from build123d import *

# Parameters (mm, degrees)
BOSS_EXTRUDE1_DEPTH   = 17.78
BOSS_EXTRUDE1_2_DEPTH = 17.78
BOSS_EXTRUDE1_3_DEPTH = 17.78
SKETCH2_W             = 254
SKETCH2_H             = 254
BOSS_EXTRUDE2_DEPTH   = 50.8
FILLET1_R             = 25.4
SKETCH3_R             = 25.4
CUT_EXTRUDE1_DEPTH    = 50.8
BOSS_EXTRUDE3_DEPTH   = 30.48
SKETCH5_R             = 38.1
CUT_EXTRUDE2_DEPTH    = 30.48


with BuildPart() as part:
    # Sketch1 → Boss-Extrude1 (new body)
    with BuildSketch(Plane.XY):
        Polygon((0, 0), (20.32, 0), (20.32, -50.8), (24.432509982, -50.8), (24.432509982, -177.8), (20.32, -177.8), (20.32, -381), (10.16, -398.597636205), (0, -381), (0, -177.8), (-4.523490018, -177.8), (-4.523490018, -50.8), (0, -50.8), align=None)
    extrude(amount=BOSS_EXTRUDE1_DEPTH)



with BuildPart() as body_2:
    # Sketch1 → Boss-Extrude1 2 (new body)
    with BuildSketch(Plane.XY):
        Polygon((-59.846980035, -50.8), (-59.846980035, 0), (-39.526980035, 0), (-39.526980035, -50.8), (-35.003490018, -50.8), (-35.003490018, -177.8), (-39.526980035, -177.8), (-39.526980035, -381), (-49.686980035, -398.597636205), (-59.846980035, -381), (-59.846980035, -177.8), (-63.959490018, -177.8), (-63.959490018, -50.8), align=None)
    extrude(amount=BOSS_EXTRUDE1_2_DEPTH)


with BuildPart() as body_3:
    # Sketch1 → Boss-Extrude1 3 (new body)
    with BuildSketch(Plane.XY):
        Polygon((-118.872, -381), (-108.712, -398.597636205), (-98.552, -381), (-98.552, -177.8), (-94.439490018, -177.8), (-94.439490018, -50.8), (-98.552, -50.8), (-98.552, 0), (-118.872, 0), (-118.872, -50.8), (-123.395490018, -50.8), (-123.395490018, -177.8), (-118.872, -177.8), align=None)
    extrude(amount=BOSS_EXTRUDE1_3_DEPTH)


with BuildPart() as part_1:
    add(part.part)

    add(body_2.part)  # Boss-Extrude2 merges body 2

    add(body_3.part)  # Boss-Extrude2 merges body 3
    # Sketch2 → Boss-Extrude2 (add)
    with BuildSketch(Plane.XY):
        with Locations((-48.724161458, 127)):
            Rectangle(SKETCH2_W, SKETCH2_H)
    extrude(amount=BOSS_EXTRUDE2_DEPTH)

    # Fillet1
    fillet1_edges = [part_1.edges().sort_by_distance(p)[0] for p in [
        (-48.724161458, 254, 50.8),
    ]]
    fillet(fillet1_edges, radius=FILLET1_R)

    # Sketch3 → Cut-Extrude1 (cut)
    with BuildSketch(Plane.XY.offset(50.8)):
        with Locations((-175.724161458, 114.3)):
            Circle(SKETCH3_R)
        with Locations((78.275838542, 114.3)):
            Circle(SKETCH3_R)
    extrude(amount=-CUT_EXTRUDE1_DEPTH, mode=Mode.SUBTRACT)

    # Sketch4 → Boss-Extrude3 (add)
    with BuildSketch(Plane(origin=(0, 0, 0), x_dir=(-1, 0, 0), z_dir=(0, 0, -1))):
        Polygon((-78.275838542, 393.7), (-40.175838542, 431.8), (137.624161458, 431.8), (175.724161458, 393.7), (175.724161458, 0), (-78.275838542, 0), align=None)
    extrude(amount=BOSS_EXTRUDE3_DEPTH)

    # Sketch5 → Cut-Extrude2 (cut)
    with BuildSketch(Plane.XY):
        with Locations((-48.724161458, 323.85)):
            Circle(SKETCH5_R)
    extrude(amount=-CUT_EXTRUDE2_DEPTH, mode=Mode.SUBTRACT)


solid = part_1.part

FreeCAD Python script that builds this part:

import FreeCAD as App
import Part
import Sketcher
from FreeCAD import Vector
Q = App.Units.Quantity


def edges_at(feature, points):
    """Names of the edges that pass closest to the given points."""
    edges = feature.Shape.Edges
    near = lambda p: min(range(len(edges)), key=lambda i: edges[i].distToShape(Part.Vertex(*p))[0])
    return sorted({f"Edge{near(p) + 1}" for p in points})

doc = App.newDocument("Part")
body = doc.addObject("PartDesign::Body", "Body")

# Sketch on XY plane
sketch1 = body.newObject("Sketcher::SketchObject", "Sketch")
sketch1.AttachmentSupport = (doc.getObject("XY_Plane"), [""])
sketch1.MapMode = "FlatFace"
sketch1.addGeometry(Part.LineSegment(Vector(20.3, 0, 0), Vector(0, 0, 0)), False)
sketch1.addGeometry(Part.LineSegment(Vector(0, 0, 0), Vector(0, -50.8, 0)), False)
sketch1.addGeometry(Part.LineSegment(Vector(0, -50.8, 0), Vector(-4.5, -50.8, 0)), False)
sketch1.addGeometry(Part.LineSegment(Vector(-4.5, -50.8, 0), Vector(-4.5, -177.8, 0)), False)
sketch1.addGeometry(Part.LineSegment(Vector(-4.5, -177.8, 0), Vector(0, -177.8, 0)), False)
sketch1.addGeometry(Part.LineSegment(Vector(0, -177.8, 0), Vector(0, -381, 0)), False)
sketch1.addGeometry(Part.LineSegment(Vector(0, -381, 0), Vector(10.2, -398.6, 0)), False)
sketch1.addGeometry(Part.LineSegment(Vector(10.2, -398.6, 0), Vector(20.3, -381, 0)), False)
sketch1.addGeometry(Part.LineSegment(Vector(20.3, -381, 0), Vector(20.3, -177.8, 0)), False)
sketch1.addGeometry(Part.LineSegment(Vector(20.3, -177.8, 0), Vector(24.4, -177.8, 0)), False)
sketch1.addGeometry(Part.LineSegment(Vector(24.4, -177.8, 0), Vector(24.4, -50.8, 0)), False)
sketch1.addGeometry(Part.LineSegment(Vector(24.4, -50.8, 0), Vector(20.3, -50.8, 0)), False)
sketch1.addGeometry(Part.LineSegment(Vector(20.3, -50.8, 0), Vector(20.3, 0, 0)), False)
sketch1.addConstraint(Sketcher.Constraint("Coincident", 0, 2, 1, 1))
sketch1.addConstraint(Sketcher.Constraint("Coincident", 1, 2, 2, 1))
sketch1.addConstraint(Sketcher.Constraint("Coincident", 2, 2, 3, 1))
sketch1.addConstraint(Sketcher.Constraint("Coincident", 3, 2, 4, 1))
sketch1.addConstraint(Sketcher.Constraint("Coincident", 4, 2, 5, 1))
sketch1.addConstraint(Sketcher.Constraint("Coincident", 5, 2, 6, 1))
sketch1.addConstraint(Sketcher.Constraint("Coincident", 6, 2, 7, 1))
sketch1.addConstraint(Sketcher.Constraint("Coincident", 7, 2, 8, 1))
sketch1.addConstraint(Sketcher.Constraint("Coincident", 8, 2, 9, 1))
sketch1.addConstraint(Sketcher.Constraint("Coincident", 9, 2, 10, 1))
sketch1.addConstraint(Sketcher.Constraint("Coincident", 10, 2, 11, 1))
sketch1.addConstraint(Sketcher.Constraint("Coincident", 11, 2, 12, 1))
sketch1.addConstraint(Sketcher.Constraint("Coincident", 12, 2, 0, 1))
sketch1.addConstraint(Sketcher.Constraint("Horizontal", 0))
sketch1.addConstraint(Sketcher.Constraint("Vertical", 1))
sketch1.addConstraint(Sketcher.Constraint("Horizontal", 2))
sketch1.addConstraint(Sketcher.Constraint("Vertical", 3))
sketch1.addConstraint(Sketcher.Constraint("Horizontal", 4))
sketch1.addConstraint(Sketcher.Constraint("Vertical", 5))
sketch1.addConstraint(Sketcher.Constraint("Vertical", 8))
sketch1.addConstraint(Sketcher.Constraint("Horizontal", 9))
sketch1.addConstraint(Sketcher.Constraint("Vertical", 10))
sketch1.addConstraint(Sketcher.Constraint("Horizontal", 11))
sketch1.addConstraint(Sketcher.Constraint("Vertical", 12))
sketch1.addConstraint(Sketcher.Constraint("Coincident", 0, 2, -1, 1))
sketch1.addConstraint(Sketcher.Constraint("PointOnObject", 4, 2, -2))
sketch1.addConstraint(Sketcher.Constraint("Horizontal", 5, 2, 7, 2))
sketch1.addConstraint(Sketcher.Constraint("Horizontal", 4, 2, 8, 2))
sketch1.addConstraint(Sketcher.Constraint("Horizontal", 2, 2, 10, 2))
sketch1.addConstraint(Sketcher.Constraint("Vertical", 8, 2, 11, 2))
sketch1.addConstraint(Sketcher.Constraint("Equal", 6, 7))
sketch1.addConstraint(Sketcher.Constraint("DistanceY", 1, 2, 1, 1, Q("2 in")))
sketch1.addConstraint(Sketcher.Constraint("DistanceY", 3, 2, 3, 1, Q("5 in")))
sketch1.addConstraint(Sketcher.Constraint("DistanceY", 5, 2, 5, 1, Q("8 in")))
sketch1.addConstraint(Sketcher.Constraint("DistanceX", 0, 2, 0, 1, Q("0.8 in")))
sketch1.addConstraint(Sketcher.Constraint("Angle", 6, Q("-60 deg")))
sketch1.addConstraint(Sketcher.Constraint("DistanceX", 3, 2, 9, 2, Q("1.14 in")))
sketch1.addConstraint(Sketcher.Constraint("DistanceX", 2, 2, 2, 1, Q("4.52349 mm")))
pad1 = body.newObject("PartDesign::Pad", "Pad")
pad1.Profile = sketch1
pad1.Length = Q("0.7 in")
body2 = doc.addObject("PartDesign::Body", "Body001")

# Sketch on XY plane
sketch2 = body2.newObject("Sketcher::SketchObject", "Sketch001")
sketch2.AttachmentSupport = (doc.getObject("XY_Plane001"), [""])
sketch2.MapMode = "FlatFace"
sketch2.addGeometry(Part.LineSegment(Vector(-59.8, 0, 0), Vector(-59.8, -50.8, 0)), False)
sketch2.addGeometry(Part.LineSegment(Vector(-59.8, -50.8, 0), Vector(-64, -50.8, 0)), False)
sketch2.addGeometry(Part.LineSegment(Vector(-64, -50.8, 0), Vector(-64, -177.8, 0)), False)
sketch2.addGeometry(Part.LineSegment(Vector(-64, -177.8, 0), Vector(-59.8, -177.8, 0)), False)
sketch2.addGeometry(Part.LineSegment(Vector(-59.8, -177.8, 0), Vector(-59.8, -381, 0)), False)
sketch2.addGeometry(Part.LineSegment(Vector(-59.8, -381, 0), Vector(-49.7, -398.6, 0)), False)
sketch2.addGeometry(Part.LineSegment(Vector(-49.7, -398.6, 0), Vector(-39.5, -381, 0)), False)
sketch2.addGeometry(Part.LineSegment(Vector(-39.5, -381, 0), Vector(-39.5, -177.8, 0)), False)
sketch2.addGeometry(Part.LineSegment(Vector(-39.5, -177.8, 0), Vector(-35, -177.8, 0)), False)
sketch2.addGeometry(Part.LineSegment(Vector(-35, -177.8, 0), Vector(-35, -50.8, 0)), False)
sketch2.addGeometry(Part.LineSegment(Vector(-35, -50.8, 0), Vector(-39.5, -50.8, 0)), False)
sketch2.addGeometry(Part.LineSegment(Vector(-39.5, -50.8, 0), Vector(-39.5, 0, 0)), False)
sketch2.addGeometry(Part.LineSegment(Vector(-39.5, 0, 0), Vector(-59.8, 0, 0)), False)
sketch2.addConstraint(Sketcher.Constraint("Coincident", 0, 2, 1, 1))
sketch2.addConstraint(Sketcher.Constraint("Coincident", 1, 2, 2, 1))
sketch2.addConstraint(Sketcher.Constraint("Coincident", 2, 2, 3, 1))
sketch2.addConstraint(Sketcher.Constraint("Coincident", 3, 2, 4, 1))
sketch2.addConstraint(Sketcher.Constraint("Coincident", 4, 2, 5, 1))
sketch2.addConstraint(Sketcher.Constraint("Coincident", 5, 2, 6, 1))
sketch2.addConstraint(Sketcher.Constraint("Coincident", 6, 2, 7, 1))
sketch2.addConstraint(Sketcher.Constraint("Coincident", 7, 2, 8, 1))
sketch2.addConstraint(Sketcher.Constraint("Coincident", 8, 2, 9, 1))
sketch2.addConstraint(Sketcher.Constraint("Coincident", 9, 2, 10, 1))
sketch2.addConstraint(Sketcher.Constraint("Coincident", 10, 2, 11, 1))
sketch2.addConstraint(Sketcher.Constraint("Coincident", 11, 2, 12, 1))
sketch2.addConstraint(Sketcher.Constraint("Coincident", 12, 2, 0, 1))
sketch2.addConstraint(Sketcher.Constraint("Vertical", 0))
sketch2.addConstraint(Sketcher.Constraint("Horizontal", 1))
sketch2.addConstraint(Sketcher.Constraint("Vertical", 2))
sketch2.addConstraint(Sketcher.Constraint("Horizontal", 3))
sketch2.addConstraint(Sketcher.Constraint("Vertical", 4))
sketch2.addConstraint(Sketcher.Constraint("Vertical", 7))
sketch2.addConstraint(Sketcher.Constraint("Horizontal", 8))
sketch2.addConstraint(Sketcher.Constraint("Vertical", 9))
sketch2.addConstraint(Sketcher.Constraint("Horizontal", 10))
sketch2.addConstraint(Sketcher.Constraint("Vertical", 11))
sketch2.addConstraint(Sketcher.Constraint("Horizontal", 12))
sketch2.addConstraint(Sketcher.Constraint("PointOnObject", 11, 2, -1))
sketch2.addConstraint(Sketcher.Constraint("Horizontal", 4, 2, 6, 2))
sketch2.addConstraint(Sketcher.Constraint("Horizontal", 3, 2, 7, 2))
sketch2.addConstraint(Sketcher.Constraint("Horizontal", 1, 2, 9, 2))
sketch2.addConstraint(Sketcher.Constraint("Vertical", 0, 2, 3, 2))
sketch2.addConstraint(Sketcher.Constraint("Vertical", 7, 2, 10, 2))
sketch2.addConstraint(Sketcher.Constraint("Equal", 5, 6))
sketch2.addConstraint(Sketcher.Constraint("DistanceY", 0, 2, 0, 1, Q("2 in")))
sketch2.addConstraint(Sketcher.Constraint("DistanceY", 2, 2, 2, 1, Q("5 in")))
sketch2.addConstraint(Sketcher.Constraint("DistanceY", 4, 2, 4, 1, Q("8 in")))
sketch2.addConstraint(Sketcher.Constraint("DistanceX", 12, 2, 12, 1, Q("0.8 in")))
sketch2.addConstraint(Sketcher.Constraint("Angle", 5, Q("-60 deg")))
sketch2.addConstraint(Sketcher.Constraint("DistanceX", 2, 2, 8, 2, Q("1.14 in")))
sketch2.addConstraint(Sketcher.Constraint("DistanceX", 1, 2, 1, 1, Q("4.11251 mm")))
sketch2.addConstraint(Sketcher.Constraint("DistanceX", 0, 2, -1, 1, Q("59.84698 mm")))
pad2 = body2.newObject("PartDesign::Pad", "Pad001")
pad2.Profile = sketch2
pad2.Length = Q("0.7 in")
body3 = doc.addObject("PartDesign::Body", "Body002")

# Sketch on XY plane
sketch3 = body3.newObject("Sketcher::SketchObject", "Sketch002")
sketch3.AttachmentSupport = (doc.getObject("XY_Plane002"), [""])
sketch3.MapMode = "FlatFace"
sketch3.addGeometry(Part.LineSegment(Vector(-118.9, -381, 0), Vector(-108.7, -398.6, 0)), False)
sketch3.addGeometry(Part.LineSegment(Vector(-108.7, -398.6, 0), Vector(-98.6, -381, 0)), False)
sketch3.addGeometry(Part.LineSegment(Vector(-98.6, -381, 0), Vector(-98.6, -177.8, 0)), False)
sketch3.addGeometry(Part.LineSegment(Vector(-98.6, -177.8, 0), Vector(-94.4, -177.8, 0)), False)
sketch3.addGeometry(Part.LineSegment(Vector(-94.4, -177.8, 0), Vector(-94.4, -50.8, 0)), False)
sketch3.addGeometry(Part.LineSegment(Vector(-94.4, -50.8, 0), Vector(-98.6, -50.8, 0)), False)
sketch3.addGeometry(Part.LineSegment(Vector(-98.6, -50.8, 0), Vector(-98.6, 0, 0)), False)
sketch3.addGeometry(Part.LineSegment(Vector(-98.6, 0, 0), Vector(-118.9, 0, 0)), False)
sketch3.addGeometry(Part.LineSegment(Vector(-118.9, 0, 0), Vector(-118.9, -50.8, 0)), False)
sketch3.addGeometry(Part.LineSegment(Vector(-118.9, -50.8, 0), Vector(-123.4, -50.8, 0)), False)
sketch3.addGeometry(Part.LineSegment(Vector(-123.4, -50.8, 0), Vector(-123.4, -177.8, 0)), False)
sketch3.addGeometry(Part.LineSegment(Vector(-123.4, -177.8, 0), Vector(-118.9, -177.8, 0)), False)
sketch3.addGeometry(Part.LineSegment(Vector(-118.9, -177.8, 0), Vector(-118.9, -381, 0)), False)
sketch3.addConstraint(Sketcher.Constraint("Coincident", 0, 2, 1, 1))
sketch3.addConstraint(Sketcher.Constraint("Coincident", 1, 2, 2, 1))
sketch3.addConstraint(Sketcher.Constraint("Coincident", 2, 2, 3, 1))
sketch3.addConstraint(Sketcher.Constraint("Coincident", 3, 2, 4, 1))
sketch3.addConstraint(Sketcher.Constraint("Coincident", 4, 2, 5, 1))
sketch3.addConstraint(Sketcher.Constraint("Coincident", 5, 2, 6, 1))
sketch3.addConstraint(Sketcher.Constraint("Coincident", 6, 2, 7, 1))
sketch3.addConstraint(Sketcher.Constraint("Coincident", 7, 2, 8, 1))
sketch3.addConstraint(Sketcher.Constraint("Coincident", 8, 2, 9, 1))
sketch3.addConstraint(Sketcher.Constraint("Coincident", 9, 2, 10, 1))
sketch3.addConstraint(Sketcher.Constraint("Coincident", 10, 2, 11, 1))
sketch3.addConstraint(Sketcher.Constraint("Coincident", 11, 2, 12, 1))
sketch3.addConstraint(Sketcher.Constraint("Coincident", 12, 2, 0, 1))
sketch3.addConstraint(Sketcher.Constraint("Vertical", 2))
sketch3.addConstraint(Sketcher.Constraint("Horizontal", 3))
sketch3.addConstraint(Sketcher.Constraint("Vertical", 4))
sketch3.addConstraint(Sketcher.Constraint("Horizontal", 5))
sketch3.addConstraint(Sketcher.Constraint("Vertical", 6))
sketch3.addConstraint(Sketcher.Constraint("Horizontal", 7))
sketch3.addConstraint(Sketcher.Constraint("Vertical", 8))
sketch3.addConstraint(Sketcher.Constraint("Horizontal", 9))
sketch3.addConstraint(Sketcher.Constraint("Vertical", 10))
sketch3.addConstraint(Sketcher.Constraint("Horizontal", 11))
sketch3.addConstraint(Sketcher.Constraint("Vertical", 12))
sketch3.addConstraint(Sketcher.Constraint("PointOnObject", 6, 2, -1))
sketch3.addConstraint(Sketcher.Constraint("Horizontal", 5, 2, 8, 2))
sketch3.addConstraint(Sketcher.Constraint("Horizontal", 3, 2, 10, 2))
sketch3.addConstraint(Sketcher.Constraint("Horizontal", 1, 2, 12, 2))
sketch3.addConstraint(Sketcher.Constraint("Vertical", 2, 2, 5, 2))
sketch3.addConstraint(Sketcher.Constraint("Vertical", 8, 2, 11, 2))
sketch3.addConstraint(Sketcher.Constraint("Equal", 0, 1))
sketch3.addConstraint(Sketcher.Constraint("DistanceY", 2, 1, 2, 2, Q("8 in")))
sketch3.addConstraint(Sketcher.Constraint("DistanceY", 4, 1, 4, 2, Q("5 in")))
sketch3.addConstraint(Sketcher.Constraint("DistanceY", 6, 1, 6, 2, Q("2 in")))
sketch3.addConstraint(Sketcher.Constraint("DistanceX", 7, 2, 7, 1, Q("0.8 in")))
sketch3.addConstraint(Sketcher.Constraint("Angle", 0, Q("-60 deg")))
sketch3.addConstraint(Sketcher.Constraint("DistanceX", 0, 2, -1, 1, Q("4.28 in")))
sketch3.addConstraint(Sketcher.Constraint("DistanceX", 9, 2, 4, 2, Q("1.14 in")))
sketch3.addConstraint(Sketcher.Constraint("DistanceX", 3, 1, 3, 2, Q("4.11251 mm")))
pad3 = body3.newObject("PartDesign::Pad", "Pad002")
pad3.Profile = sketch3
pad3.Length = Q("0.7 in")
body.AllowCompound = True
doc.recompute()

boolean = body.newObject("PartDesign::Boolean", "Boolean")
boolean.Type = "Fuse"
boolean.addObjects([body2])
doc.recompute()

boolean2 = body.newObject("PartDesign::Boolean", "Boolean001")
boolean2.Type = "Fuse"
boolean2.addObjects([body3])

# Sketch on XY plane
sketch4 = body.newObject("Sketcher::SketchObject", "Sketch003")
sketch4.AttachmentSupport = (doc.getObject("XY_Plane"), [""])
sketch4.MapMode = "FlatFace"
sketch4.addGeometry(Part.LineSegment(Vector(-176, 254, 0), Vector(-176, 0, 0)), False)
sketch4.addGeometry(Part.LineSegment(Vector(-176, 0, 0), Vector(78, 0, 0)), False)
sketch4.addGeometry(Part.LineSegment(Vector(78, 0, 0), Vector(78, 254, 0)), False)
sketch4.addGeometry(Part.LineSegment(Vector(78, 254, 0), Vector(-176, 254, 0)), False)
sketch4.addConstraint(Sketcher.Constraint("Coincident", 0, 2, 1, 1))
sketch4.addConstraint(Sketcher.Constraint("Coincident", 1, 2, 2, 1))
sketch4.addConstraint(Sketcher.Constraint("Coincident", 2, 2, 3, 1))
sketch4.addConstraint(Sketcher.Constraint("Coincident", 3, 2, 0, 1))
sketch4.addConstraint(Sketcher.Constraint("Vertical", 0))
sketch4.addConstraint(Sketcher.Constraint("Horizontal", 1))
sketch4.addConstraint(Sketcher.Constraint("Vertical", 2))
sketch4.addConstraint(Sketcher.Constraint("Horizontal", 3))
sketch4.addConstraint(Sketcher.Constraint("PointOnObject", 0, 2, -1))
sketch4.addConstraint(Sketcher.Constraint("Equal", 3, 0))
sketch4.addConstraint(Sketcher.Constraint("DistanceX", 1, 1, 1, 2, Q("10 in")))
sketch4.addConstraint(Sketcher.Constraint("DistanceX", 0, 2, -1, 1, Q("175.724161 mm")))
pad4 = body.newObject("PartDesign::Pad", "Pad003")
pad4.Profile = sketch4
pad4.Length = Q("2 in")
doc.recompute()

fillet = body.newObject("PartDesign::Fillet", "Fillet")
fillet.Base = (pad4, edges_at(pad4, [(-48.724, 254, 50.8)]))
fillet.Radius = Q("1 in")

# Sketch on XY plane
sketch5 = body.newObject("Sketcher::SketchObject", "Sketch004")
sketch5.AttachmentSupport = (doc.getObject("XY_Plane"), [""])
sketch5.MapMode = "FlatFace"
sketch5.AttachmentOffset = App.Placement(Vector(0, 0, 2 * 25.4), App.Rotation())
sketch5.addGeometry(Part.Circle(Vector(-176, 114, 0), Vector(0, 0, 1), 25), False)
sketch5.addGeometry(Part.Circle(Vector(78, 114, 0), Vector(0, 0, 1), 25), False)
sketch5.addConstraint(Sketcher.Constraint("Equal", 0, 1))
sketch5.addConstraint(Sketcher.Constraint("Horizontal", 0, 3, 1, 3))
sketch5.addConstraint(Sketcher.Constraint("Diameter", 0, Q("2 in")))
sketch5.addConstraint(Sketcher.Constraint("DistanceX", 0, 3, 1, 3, Q("10 in")))
sketch5.addConstraint(Sketcher.Constraint("DistanceY", -1, 1, 0, 3, Q("4.5 in")))
sketch5.addConstraint(Sketcher.Constraint("DistanceX", 0, 3, -1, 1, Q("175.724161 mm")))
pocket1 = body.newObject("PartDesign::Pocket", "Pocket")
pocket1.Profile = sketch5
pocket1.Length = Q("2 in")

# Sketch on XY plane
sketch6 = body.newObject("Sketcher::SketchObject", "Sketch005")
sketch6.AttachmentSupport = (doc.getObject("XY_Plane"), [""])
sketch6.MapMode = "FlatFace"
sketch6.addGeometry(Part.LineSegment(Vector(40, 432, 0), Vector(78, 394, 0)), False)
sketch6.addGeometry(Part.LineSegment(Vector(78, 394, 0), Vector(78, 0, 0)), False)
sketch6.addGeometry(Part.LineSegment(Vector(78, 0, 0), Vector(-176, 0, 0)), False)
sketch6.addGeometry(Part.LineSegment(Vector(-176, 0, 0), Vector(-176, 394, 0)), False)
sketch6.addGeometry(Part.LineSegment(Vector(-176, 394, 0), Vector(-138, 432, 0)), False)
sketch6.addGeometry(Part.LineSegment(Vector(-138, 432, 0), Vector(40, 432, 0)), False)
sketch6.addConstraint(Sketcher.Constraint("Coincident", 0, 2, 1, 1))
sketch6.addConstraint(Sketcher.Constraint("Coincident", 1, 2, 2, 1))
sketch6.addConstraint(Sketcher.Constraint("Coincident", 2, 2, 3, 1))
sketch6.addConstraint(Sketcher.Constraint("Coincident", 3, 2, 4, 1))
sketch6.addConstraint(Sketcher.Constraint("Coincident", 4, 2, 5, 1))
sketch6.addConstraint(Sketcher.Constraint("Coincident", 5, 2, 0, 1))
sketch6.addConstraint(Sketcher.Constraint("Vertical", 1))
sketch6.addConstraint(Sketcher.Constraint("Horizontal", 2))
sketch6.addConstraint(Sketcher.Constraint("Vertical", 3))
sketch6.addConstraint(Sketcher.Constraint("Horizontal", 5))
sketch6.addConstraint(Sketcher.Constraint("PointOnObject", 1, 2, -1))
sketch6.addConstraint(Sketcher.Constraint("Perpendicular", 0, 4))
sketch6.addConstraint(Sketcher.Constraint("Horizontal", 0, 2, 3, 2))
sketch6.addConstraint(Sketcher.Constraint("Equal", 0, 4))
sketch6.addConstraint(Sketcher.Constraint("DistanceX", 2, 2, 2, 1, Q("10 in")))
sketch6.addConstraint(Sketcher.Constraint("DistanceX", 5, 1, 5, 2, Q("7 in")))
sketch6.addConstraint(Sketcher.Constraint("DistanceY", 1, 2, 1, 1, Q("15.5 in")))
sketch6.addConstraint(Sketcher.Constraint("DistanceX", -1, 1, 0, 2, Q("78.275839 mm")))
pad5 = body.newObject("PartDesign::Pad", "Pad004")
pad5.Profile = sketch6
pad5.Length = Q("1.2 in")
pad5.Reversed = True

# Sketch on XY plane
sketch7 = body.newObject("Sketcher::SketchObject", "Sketch006")
sketch7.AttachmentSupport = (doc.getObject("XY_Plane"), [""])
sketch7.MapMode = "FlatFace"
sketch7.addGeometry(Part.Circle(Vector(-49, 324, 0), Vector(0, 0, 1), 38), False)
sketch7.addConstraint(Sketcher.Constraint("Diameter", 0, Q("3 in")))
sketch7.addConstraint(Sketcher.Constraint("DistanceY", -1, 1, 0, 3, Q("12.75 in")))
sketch7.addConstraint(Sketcher.Constraint("DistanceX", 0, 3, -1, 1, Q("48.724161 mm")))
pocket2 = body.newObject("PartDesign::Pocket", "Pocket001")
pocket2.Profile = sketch7
pocket2.Length = Q("1.2 in")

doc.recompute()
